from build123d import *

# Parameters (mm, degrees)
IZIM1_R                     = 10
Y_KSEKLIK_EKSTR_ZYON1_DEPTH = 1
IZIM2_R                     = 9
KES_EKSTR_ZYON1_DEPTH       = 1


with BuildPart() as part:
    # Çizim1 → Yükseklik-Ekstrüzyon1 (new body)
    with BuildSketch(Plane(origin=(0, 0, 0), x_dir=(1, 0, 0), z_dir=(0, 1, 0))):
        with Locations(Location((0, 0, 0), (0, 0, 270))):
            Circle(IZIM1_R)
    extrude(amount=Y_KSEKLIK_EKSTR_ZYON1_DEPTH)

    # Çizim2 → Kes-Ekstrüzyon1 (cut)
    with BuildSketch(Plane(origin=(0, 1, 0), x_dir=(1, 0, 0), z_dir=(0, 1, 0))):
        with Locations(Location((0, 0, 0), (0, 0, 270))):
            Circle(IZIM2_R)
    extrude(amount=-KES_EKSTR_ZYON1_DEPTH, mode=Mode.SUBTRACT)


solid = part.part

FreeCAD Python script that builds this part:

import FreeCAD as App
import Part
import Sketcher

V = App.Vector
Q = App.Units.Quantity

doc = App.newDocument("Part")
body = doc.addObject("PartDesign::Body", "Body")

sketch1 = doc.addObject("Sketcher::SketchObject", "Sketch")
body.addObject(sketch1)
sketch1.AttachmentSupport = (doc.XZ_Plane, [""])
sketch1.MapMode = "FlatFace"
sketch1.addGeometry(Part.Circle(V(0, 0, 0), V(0, 0, 1), 10), False)
sketch1.addConstraint([
    Sketcher.Constraint("Coincident", 0, 3, -1, 1),
    Sketcher.Constraint("Diameter", 0, Q("20 mm")),
])
pad1 = doc.addObject("PartDesign::Pad", "Pad")
body.addObject(pad1)
pad1.Profile = sketch1
pad1.Length = 1
pad1.Reversed = True

sketch2 = doc.addObject("Sketcher::SketchObject", "Sketch001")
body.addObject(sketch2)
sketch2.AttachmentSupport = (doc.XZ_Plane, [""])
sketch2.MapMode = "FlatFace"
sketch2.AttachmentOffset = App.Placement(V(0, 0, -1), App.Rotation())
sketch2.addGeometry(Part.Circle(V(0, 0, 0), V(0, 0, 1), 9), False)
sketch2.addConstraint([
    Sketcher.Constraint("Coincident", 0, 3, -1, 1),
    Sketcher.Constraint("Diameter", 0, Q("18 mm")),
])
pocket1 = doc.addObject("PartDesign::Pocket", "Pocket")
body.addObject(pocket1)
pocket1.Profile = sketch2
pocket1.Length = 1
pocket1.Reversed = True

doc.recompute()
